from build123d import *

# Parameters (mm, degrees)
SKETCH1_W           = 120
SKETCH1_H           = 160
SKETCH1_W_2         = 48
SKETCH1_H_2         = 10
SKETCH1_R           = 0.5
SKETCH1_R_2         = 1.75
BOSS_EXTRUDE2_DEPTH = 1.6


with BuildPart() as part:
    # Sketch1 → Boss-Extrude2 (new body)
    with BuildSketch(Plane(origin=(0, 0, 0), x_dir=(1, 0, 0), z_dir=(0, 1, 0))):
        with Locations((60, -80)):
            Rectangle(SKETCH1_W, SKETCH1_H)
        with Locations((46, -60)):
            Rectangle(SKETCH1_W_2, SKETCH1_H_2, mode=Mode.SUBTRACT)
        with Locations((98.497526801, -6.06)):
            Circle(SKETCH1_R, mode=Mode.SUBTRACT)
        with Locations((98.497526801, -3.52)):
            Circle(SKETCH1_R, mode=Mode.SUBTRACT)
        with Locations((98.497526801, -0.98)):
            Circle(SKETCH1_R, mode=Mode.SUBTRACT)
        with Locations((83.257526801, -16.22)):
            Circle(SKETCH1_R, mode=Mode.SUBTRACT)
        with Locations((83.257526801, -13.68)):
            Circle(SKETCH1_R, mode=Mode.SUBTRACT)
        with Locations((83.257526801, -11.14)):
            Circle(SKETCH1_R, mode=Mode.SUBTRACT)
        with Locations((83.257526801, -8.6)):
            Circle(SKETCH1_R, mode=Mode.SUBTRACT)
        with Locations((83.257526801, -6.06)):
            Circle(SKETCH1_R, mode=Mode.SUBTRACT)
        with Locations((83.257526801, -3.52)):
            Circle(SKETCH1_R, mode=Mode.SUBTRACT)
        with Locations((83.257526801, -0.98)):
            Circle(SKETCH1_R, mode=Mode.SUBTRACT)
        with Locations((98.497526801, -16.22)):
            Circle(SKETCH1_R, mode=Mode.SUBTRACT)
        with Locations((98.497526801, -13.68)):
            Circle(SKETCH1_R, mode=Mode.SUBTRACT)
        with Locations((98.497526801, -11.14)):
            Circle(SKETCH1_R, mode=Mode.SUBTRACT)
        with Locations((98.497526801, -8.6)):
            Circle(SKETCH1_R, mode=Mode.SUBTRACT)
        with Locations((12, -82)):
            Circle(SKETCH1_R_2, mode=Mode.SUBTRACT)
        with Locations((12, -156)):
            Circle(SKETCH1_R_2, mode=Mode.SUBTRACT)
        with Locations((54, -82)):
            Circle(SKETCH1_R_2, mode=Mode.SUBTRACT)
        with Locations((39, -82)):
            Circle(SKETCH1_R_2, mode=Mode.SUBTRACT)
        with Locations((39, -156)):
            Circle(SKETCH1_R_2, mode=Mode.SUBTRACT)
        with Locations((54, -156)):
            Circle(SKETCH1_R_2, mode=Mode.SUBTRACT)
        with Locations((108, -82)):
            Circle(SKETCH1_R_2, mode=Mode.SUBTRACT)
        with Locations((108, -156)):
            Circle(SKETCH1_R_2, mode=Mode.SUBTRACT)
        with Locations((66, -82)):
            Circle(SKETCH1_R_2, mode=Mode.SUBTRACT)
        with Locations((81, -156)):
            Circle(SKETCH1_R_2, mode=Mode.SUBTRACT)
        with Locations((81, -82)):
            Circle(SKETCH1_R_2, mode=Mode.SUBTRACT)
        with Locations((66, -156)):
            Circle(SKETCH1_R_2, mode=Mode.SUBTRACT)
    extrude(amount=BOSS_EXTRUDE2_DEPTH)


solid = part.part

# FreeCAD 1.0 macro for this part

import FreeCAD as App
import Part
import Sketcher
Q = App.Units.Quantity


def add_polygon(sketch, points):
    """Adds a closed chain of lines whose ends are joined by coincident constraints."""
    first, n = sketch.GeometryCount, len(points)
    for a, b in zip(points, points[1:] + points[:1]):
        sketch.addGeometry(Part.LineSegment(App.Vector(*a, 0), App.Vector(*b, 0)), False)
    for i in range(n):
        sketch.addConstraint(Sketcher.Constraint("Coincident", first + i, 2, first + (i + 1) % n, 1))

doc = App.newDocument("Part")
params = doc.addObject("Spreadsheet::Sheet", "Params")
for row, (alias, value) in enumerate([
    ("sketch1_diameter", "1 mm"),
    ("sketch1_diameter2", "3.5 mm"),
    ("sketch1_width", "120 mm"),
    ("sketch1_width2", "48 mm"),
    ("sketch1_height", "160 mm"),
    ("pad1_length", "1.6 mm"),
], start=1):
    params.set(f"A{row}", alias)
    params.set(f"B{row}", "=" + value)
    params.setAlias(f"B{row}", alias)

body = doc.addObject("PartDesign::Body", "Body")

sketch1 = doc.addObject("Sketcher::SketchObject", "Sketch")
body.addObject(sketch1)
sketch1.AttachmentSupport = (doc.XZ_Plane, [""])
sketch1.MapMode = "FlatFace"
add_polygon(sketch1, [(0, 0), (0, 160), (120, 160), (120, 0)])
sketch1.addGeometry(Part.Circle(App.Vector(12, 156, 0), App.Vector(0, 0, 1), 1.75), False)
sketch1.addGeometry(Part.Circle(App.Vector(39, 156, 0), App.Vector(0, 0, 1), 1.75), False)
sketch1.addGeometry(Part.Circle(App.Vector(54, 156, 0), App.Vector(0, 0, 1), 1.75), False)
sketch1.addGeometry(Part.Circle(App.Vector(12, 82, 0), App.Vector(0, 0, 1), 1.75), False)
sketch1.addGeometry(Part.Circle(App.Vector(39, 82, 0), App.Vector(0, 0, 1), 1.75), False)
sketch1.addGeometry(Part.Circle(App.Vector(54, 82, 0), App.Vector(0, 0, 1), 1.75), False)
sketch1.addGeometry(Part.Circle(App.Vector(66, 156, 0), App.Vector(0, 0, 1), 1.75), False)
sketch1.addGeometry(Part.Circle(App.Vector(81, 156, 0), App.Vector(0, 0, 1), 1.75), False)
sketch1.addGeometry(Part.Circle(App.Vector(108, 156, 0), App.Vector(0, 0, 1), 1.75), False)
sketch1.addGeometry(Part.Circle(App.Vector(66, 82, 0), App.Vector(0, 0, 1), 1.75), False)
sketch1.addGeometry(Part.Circle(App.Vector(81, 82, 0), App.Vector(0, 0, 1), 1.75), False)
sketch1.addGeometry(Part.Circle(App.Vector(108, 82, 0), App.Vector(0, 0, 1), 1.75), False)
add_polygon(sketch1, [(70, 65), (22, 65), (22, 55), (70, 55)])
sketch1.addGeometry(Part.Circle(App.Vector(83.257527, 16.22, 0), App.Vector(0, 0, 1), 0.5), False)
sketch1.addGeometry(Part.Circle(App.Vector(83.257527, 13.68, 0), App.Vector(0, 0, 1), 0.5), False)
sketch1.addGeometry(Part.Circle(App.Vector(83.257527, 11.14, 0), App.Vector(0, 0, 1), 0.5), False)
sketch1.addGeometry(Part.Circle(App.Vector(83.257527, 8.6, 0), App.Vector(0, 0, 1), 0.5), False)
sketch1.addGeometry(Part.Circle(App.Vector(83.257527, 6.06, 0), App.Vector(0, 0, 1), 0.5), False)
sketch1.addGeometry(Part.Circle(App.Vector(83.257527, 3.52, 0), App.Vector(0, 0, 1), 0.5), False)
sketch1.addGeometry(Part.Circle(App.Vector(83.257527, 0.98, 0), App.Vector(0, 0, 1), 0.5), False)
sketch1.addGeometry(Part.Circle(App.Vector(98.497527, 16.22, 0), App.Vector(0, 0, 1), 0.5), False)
sketch1.addGeometry(Part.Circle(App.Vector(98.497527, 13.68, 0), App.Vector(0, 0, 1), 0.5), False)
sketch1.addGeometry(Part.Circle(App.Vector(98.497527, 11.14, 0), App.Vector(0, 0, 1), 0.5), False)
sketch1.addGeometry(Part.Circle(App.Vector(98.497527, 8.6, 0), App.Vector(0, 0, 1), 0.5), False)
sketch1.addGeometry(Part.Circle(App.Vector(98.497527, 6.06, 0), App.Vector(0, 0, 1), 0.5), False)
sketch1.addGeometry(Part.Circle(App.Vector(98.497527, 3.52, 0), App.Vector(0, 0, 1), 0.5), False)
sketch1.addGeometry(Part.Circle(App.Vector(98.497527, 0.98, 0), App.Vector(0, 0, 1), 0.5), False)
sketch1.addConstraint(Sketcher.Constraint("Vertical", 0))
sketch1.addConstraint(Sketcher.Constraint("Horizontal", 1))
sketch1.addConstraint(Sketcher.Constraint("Vertical", 2))
sketch1.addConstraint(Sketcher.Constraint("Horizontal", 3))
sketch1.addConstraint(Sketcher.Constraint("Horizontal", 16))
sketch1.addConstraint(Sketcher.Constraint("Vertical", 17))
sketch1.addConstraint(Sketcher.Constraint("Horizontal", 18))
sketch1.addConstraint(Sketcher.Constraint("Vertical", 19))
sketch1.addConstraint(Sketcher.Constraint("Coincident", 3, 2, -1, 1))
sketch1.addConstraint(Sketcher.Constraint("Equal", 4, 5))
sketch1.addConstraint(Sketcher.Constraint("Equal", 5, 6))
sketch1.addConstraint(Sketcher.Constraint("Equal", 6, 7))
sketch1.addConstraint(Sketcher.Constraint("Equal", 7, 8))
sketch1.addConstraint(Sketcher.Constraint("Equal", 8, 9))
sketch1.addConstraint(Sketcher.Constraint("Equal", 9, 10))
sketch1.addConstraint(Sketcher.Constraint("Equal", 10, 11))
sketch1.addConstraint(Sketcher.Constraint("Equal", 11, 12))
sketch1.addConstraint(Sketcher.Constraint("Equal", 12, 13))
sketch1.addConstraint(Sketcher.Constraint("Equal", 13, 14))
sketch1.addConstraint(Sketcher.Constraint("Equal", 14, 15))
sketch1.addConstraint(Sketcher.Constraint("Equal", 20, 21))
sketch1.addConstraint(Sketcher.Constraint("Equal", 21, 22))
sketch1.addConstraint(Sketcher.Constraint("Equal", 22, 23))
sketch1.addConstraint(Sketcher.Constraint("Equal", 23, 24))
sketch1.addConstraint(Sketcher.Constraint("Equal", 24, 25))
sketch1.addConstraint(Sketcher.Constraint("Equal", 25, 26))
sketch1.addConstraint(Sketcher.Constraint("Equal", 26, 27))
sketch1.addConstraint(Sketcher.Constraint("Equal", 27, 28))
sketch1.addConstraint(Sketcher.Constraint("Equal", 28, 29))
sketch1.addConstraint(Sketcher.Constraint("Equal", 29, 30))
sketch1.addConstraint(Sketcher.Constraint("Equal", 30, 31))
sketch1.addConstraint(Sketcher.Constraint("Equal", 31, 32))
sketch1.addConstraint(Sketcher.Constraint("Equal", 32, 33))
sketch1.addConstraint(Sketcher.Constraint("Horizontal", 4, 3, 5, 3))
sketch1.addConstraint(Sketcher.Constraint("Horizontal", 5, 3, 6, 3))
sketch1.addConstraint(Sketcher.Constraint("Horizontal", 7, 3, 8, 3))
sketch1.addConstraint(Sketcher.Constraint("Horizontal", 8, 3, 9, 3))
sketch1.addConstraint(Sketcher.Constraint("Horizontal", 6, 3, 10, 3))
sketch1.addConstraint(Sketcher.Constraint("Horizontal", 10, 3, 11, 3))
sketch1.addConstraint(Sketcher.Constraint("Horizontal", 11, 3, 12, 3))
sketch1.addConstraint(Sketcher.Constraint("Horizontal", 9, 3, 13, 3))
sketch1.addConstraint(Sketcher.Constraint("Horizontal", 13, 3, 14, 3))
sketch1.addConstraint(Sketcher.Constraint("Horizontal", 14, 3, 15, 3))
sketch1.addConstraint(Sketcher.Constraint("Horizontal", 20, 3, 27, 3))
sketch1.addConstraint(Sketcher.Constraint("Horizontal", 21, 3, 28, 3))
sketch1.addConstraint(Sketcher.Constraint("Horizontal", 22, 3, 29, 3))
sketch1.addConstraint(Sketcher.Constraint("Horizontal", 23, 3, 30, 3))
sketch1.addConstraint(Sketcher.Constraint("Horizontal", 24, 3, 31, 3))
sketch1.addConstraint(Sketcher.Constraint("Horizontal", 25, 3, 32, 3))
sketch1.addConstraint(Sketcher.Constraint("Horizontal", 26, 3, 33, 3))
sketch1.addConstraint(Sketcher.Constraint("Vertical", 4, 3, 7, 3))
sketch1.addConstraint(Sketcher.Constraint("Vertical", 5, 3, 8, 3))
sketch1.addConstraint(Sketcher.Constraint("Vertical", 6, 3, 9, 3))
sketch1.addConstraint(Sketcher.Constraint("Vertical", 10, 3, 13, 3))
sketch1.addConstraint(Sketcher.Constraint("Vertical", 11, 3, 14, 3))
sketch1.addConstraint(Sketcher.Constraint("Vertical", 12, 3, 15, 3))
sketch1.addConstraint(Sketcher.Constraint("Vertical", 20, 3, 21, 3))
sketch1.addConstraint(Sketcher.Constraint("Vertical", 21, 3, 22, 3))
sketch1.addConstraint(Sketcher.Constraint("Vertical", 22, 3, 23, 3))
sketch1.addConstraint(Sketcher.Constraint("Vertical", 23, 3, 24, 3))
sketch1.addConstraint(Sketcher.Constraint("Vertical", 24, 3, 25, 3))
sketch1.addConstraint(Sketcher.Constraint("Vertical", 25, 3, 26, 3))
sketch1.addConstraint(Sketcher.Constraint("Vertical", 27, 3, 28, 3))
sketch1.addConstraint(Sketcher.Constraint("Vertical", 28, 3, 29, 3))
sketch1.addConstraint(Sketcher.Constraint("Vertical", 29, 3, 30, 3))
sketch1.addConstraint(Sketcher.Constraint("Vertical", 30, 3, 31, 3))
sketch1.addConstraint(Sketcher.Constraint("Vertical", 31, 3, 32, 3))
sketch1.addConstraint(Sketcher.Constraint("Vertical", 32, 3, 33, 3))
sketch1.addConstraint(Sketcher.Constraint("Diameter", 20, Q("1 mm")))
sketch1.addConstraint(Sketcher.Constraint("Diameter", 4, Q("3.5 mm")))
sketch1.addConstraint(Sketcher.Constraint("DistanceX", 1, 1, 1, 2, Q("120 mm")))
sketch1.addConstraint(Sketcher.Constraint("DistanceX", 16, 2, 16, 1, Q("48 mm")))
sketch1.addConstraint(Sketcher.Constraint("DistanceY", 0, 1, 0, 2, Q("160 mm")))
sketch1.addConstraint(Sketcher.Constraint("DistanceY", 17, 2, 17, 1, Q("10 mm")))
sketch1.addConstraint(Sketcher.Constraint("DistanceX", -1, 1, 4, 3, Q("12 mm")))
sketch1.addConstraint(Sketcher.Constraint("DistanceY", -1, 1, 4, 3, Q("156 mm")))
sketch1.addConstraint(Sketcher.Constraint("DistanceX", -1, 1, 5, 3, Q("39 mm")))
sketch1.addConstraint(Sketcher.Constraint("DistanceX", -1, 1, 6, 3, Q("54 mm")))
sketch1.addConstraint(Sketcher.Constraint("DistanceY", -1, 1, 7, 3, Q("82 mm")))
sketch1.addConstraint(Sketcher.Constraint("DistanceX", -1, 1, 10, 3, Q("66 mm")))
sketch1.addConstraint(Sketcher.Constraint("DistanceX", -1, 1, 11, 3, Q("81 mm")))
sketch1.addConstraint(Sketcher.Constraint("DistanceX", -1, 1, 12, 3, Q("108 mm")))
sketch1.addConstraint(Sketcher.Constraint("DistanceX", -1, 1, 16, 2, Q("22 mm")))
sketch1.addConstraint(Sketcher.Constraint("DistanceY", -1, 1, 16, 2, Q("65 mm")))
sketch1.addConstraint(Sketcher.Constraint("DistanceY", -1, 1, 23, 3, Q("8.6 mm")))
sketch1.addConstraint(Sketcher.Constraint("DistanceY", 25, 3, 20, 3, Q("12.7 mm")))
sketch1.addConstraint(Sketcher.Constraint("DistanceY", 26, 3, 21, 3, Q("12.7 mm")))
sketch1.addConstraint(Sketcher.Constraint("DistanceY", -1, 1, 20, 3, Q("16.22 mm")))
sketch1.addConstraint(Sketcher.Constraint("DistanceY", -1, 1, 21, 3, Q("13.68 mm")))
sketch1.addConstraint(Sketcher.Constraint("DistanceY", -1, 1, 22, 3, Q("11.14 mm")))
sketch1.addConstraint(Sketcher.Constraint("DistanceY", -1, 1, 24, 3, Q("6.06 mm")))
sketch1.addConstraint(Sketcher.Constraint("DistanceX", 20, 3, 27, 3, Q("15.24 mm")))
sketch1.addConstraint(Sketcher.Constraint("DistanceX", -1, 1, 20, 3, Q("83.257527 mm")))
sketch1.setExpression("Constraints[76]", "Params.sketch1_diameter")
sketch1.setExpression("Constraints[77]", "Params.sketch1_diameter2")
sketch1.setExpression("Constraints[78]", "Params.sketch1_width")
sketch1.setExpression("Constraints[79]", "Params.sketch1_width2")
sketch1.setExpression("Constraints[80]", "Params.sketch1_height")
pad1 = doc.addObject("PartDesign::Pad", "Pad")
body.addObject(pad1)
pad1.Profile = sketch1
pad1.setExpression("Length", "Params.pad1_length")
pad1.Reversed = True

doc.recompute()
